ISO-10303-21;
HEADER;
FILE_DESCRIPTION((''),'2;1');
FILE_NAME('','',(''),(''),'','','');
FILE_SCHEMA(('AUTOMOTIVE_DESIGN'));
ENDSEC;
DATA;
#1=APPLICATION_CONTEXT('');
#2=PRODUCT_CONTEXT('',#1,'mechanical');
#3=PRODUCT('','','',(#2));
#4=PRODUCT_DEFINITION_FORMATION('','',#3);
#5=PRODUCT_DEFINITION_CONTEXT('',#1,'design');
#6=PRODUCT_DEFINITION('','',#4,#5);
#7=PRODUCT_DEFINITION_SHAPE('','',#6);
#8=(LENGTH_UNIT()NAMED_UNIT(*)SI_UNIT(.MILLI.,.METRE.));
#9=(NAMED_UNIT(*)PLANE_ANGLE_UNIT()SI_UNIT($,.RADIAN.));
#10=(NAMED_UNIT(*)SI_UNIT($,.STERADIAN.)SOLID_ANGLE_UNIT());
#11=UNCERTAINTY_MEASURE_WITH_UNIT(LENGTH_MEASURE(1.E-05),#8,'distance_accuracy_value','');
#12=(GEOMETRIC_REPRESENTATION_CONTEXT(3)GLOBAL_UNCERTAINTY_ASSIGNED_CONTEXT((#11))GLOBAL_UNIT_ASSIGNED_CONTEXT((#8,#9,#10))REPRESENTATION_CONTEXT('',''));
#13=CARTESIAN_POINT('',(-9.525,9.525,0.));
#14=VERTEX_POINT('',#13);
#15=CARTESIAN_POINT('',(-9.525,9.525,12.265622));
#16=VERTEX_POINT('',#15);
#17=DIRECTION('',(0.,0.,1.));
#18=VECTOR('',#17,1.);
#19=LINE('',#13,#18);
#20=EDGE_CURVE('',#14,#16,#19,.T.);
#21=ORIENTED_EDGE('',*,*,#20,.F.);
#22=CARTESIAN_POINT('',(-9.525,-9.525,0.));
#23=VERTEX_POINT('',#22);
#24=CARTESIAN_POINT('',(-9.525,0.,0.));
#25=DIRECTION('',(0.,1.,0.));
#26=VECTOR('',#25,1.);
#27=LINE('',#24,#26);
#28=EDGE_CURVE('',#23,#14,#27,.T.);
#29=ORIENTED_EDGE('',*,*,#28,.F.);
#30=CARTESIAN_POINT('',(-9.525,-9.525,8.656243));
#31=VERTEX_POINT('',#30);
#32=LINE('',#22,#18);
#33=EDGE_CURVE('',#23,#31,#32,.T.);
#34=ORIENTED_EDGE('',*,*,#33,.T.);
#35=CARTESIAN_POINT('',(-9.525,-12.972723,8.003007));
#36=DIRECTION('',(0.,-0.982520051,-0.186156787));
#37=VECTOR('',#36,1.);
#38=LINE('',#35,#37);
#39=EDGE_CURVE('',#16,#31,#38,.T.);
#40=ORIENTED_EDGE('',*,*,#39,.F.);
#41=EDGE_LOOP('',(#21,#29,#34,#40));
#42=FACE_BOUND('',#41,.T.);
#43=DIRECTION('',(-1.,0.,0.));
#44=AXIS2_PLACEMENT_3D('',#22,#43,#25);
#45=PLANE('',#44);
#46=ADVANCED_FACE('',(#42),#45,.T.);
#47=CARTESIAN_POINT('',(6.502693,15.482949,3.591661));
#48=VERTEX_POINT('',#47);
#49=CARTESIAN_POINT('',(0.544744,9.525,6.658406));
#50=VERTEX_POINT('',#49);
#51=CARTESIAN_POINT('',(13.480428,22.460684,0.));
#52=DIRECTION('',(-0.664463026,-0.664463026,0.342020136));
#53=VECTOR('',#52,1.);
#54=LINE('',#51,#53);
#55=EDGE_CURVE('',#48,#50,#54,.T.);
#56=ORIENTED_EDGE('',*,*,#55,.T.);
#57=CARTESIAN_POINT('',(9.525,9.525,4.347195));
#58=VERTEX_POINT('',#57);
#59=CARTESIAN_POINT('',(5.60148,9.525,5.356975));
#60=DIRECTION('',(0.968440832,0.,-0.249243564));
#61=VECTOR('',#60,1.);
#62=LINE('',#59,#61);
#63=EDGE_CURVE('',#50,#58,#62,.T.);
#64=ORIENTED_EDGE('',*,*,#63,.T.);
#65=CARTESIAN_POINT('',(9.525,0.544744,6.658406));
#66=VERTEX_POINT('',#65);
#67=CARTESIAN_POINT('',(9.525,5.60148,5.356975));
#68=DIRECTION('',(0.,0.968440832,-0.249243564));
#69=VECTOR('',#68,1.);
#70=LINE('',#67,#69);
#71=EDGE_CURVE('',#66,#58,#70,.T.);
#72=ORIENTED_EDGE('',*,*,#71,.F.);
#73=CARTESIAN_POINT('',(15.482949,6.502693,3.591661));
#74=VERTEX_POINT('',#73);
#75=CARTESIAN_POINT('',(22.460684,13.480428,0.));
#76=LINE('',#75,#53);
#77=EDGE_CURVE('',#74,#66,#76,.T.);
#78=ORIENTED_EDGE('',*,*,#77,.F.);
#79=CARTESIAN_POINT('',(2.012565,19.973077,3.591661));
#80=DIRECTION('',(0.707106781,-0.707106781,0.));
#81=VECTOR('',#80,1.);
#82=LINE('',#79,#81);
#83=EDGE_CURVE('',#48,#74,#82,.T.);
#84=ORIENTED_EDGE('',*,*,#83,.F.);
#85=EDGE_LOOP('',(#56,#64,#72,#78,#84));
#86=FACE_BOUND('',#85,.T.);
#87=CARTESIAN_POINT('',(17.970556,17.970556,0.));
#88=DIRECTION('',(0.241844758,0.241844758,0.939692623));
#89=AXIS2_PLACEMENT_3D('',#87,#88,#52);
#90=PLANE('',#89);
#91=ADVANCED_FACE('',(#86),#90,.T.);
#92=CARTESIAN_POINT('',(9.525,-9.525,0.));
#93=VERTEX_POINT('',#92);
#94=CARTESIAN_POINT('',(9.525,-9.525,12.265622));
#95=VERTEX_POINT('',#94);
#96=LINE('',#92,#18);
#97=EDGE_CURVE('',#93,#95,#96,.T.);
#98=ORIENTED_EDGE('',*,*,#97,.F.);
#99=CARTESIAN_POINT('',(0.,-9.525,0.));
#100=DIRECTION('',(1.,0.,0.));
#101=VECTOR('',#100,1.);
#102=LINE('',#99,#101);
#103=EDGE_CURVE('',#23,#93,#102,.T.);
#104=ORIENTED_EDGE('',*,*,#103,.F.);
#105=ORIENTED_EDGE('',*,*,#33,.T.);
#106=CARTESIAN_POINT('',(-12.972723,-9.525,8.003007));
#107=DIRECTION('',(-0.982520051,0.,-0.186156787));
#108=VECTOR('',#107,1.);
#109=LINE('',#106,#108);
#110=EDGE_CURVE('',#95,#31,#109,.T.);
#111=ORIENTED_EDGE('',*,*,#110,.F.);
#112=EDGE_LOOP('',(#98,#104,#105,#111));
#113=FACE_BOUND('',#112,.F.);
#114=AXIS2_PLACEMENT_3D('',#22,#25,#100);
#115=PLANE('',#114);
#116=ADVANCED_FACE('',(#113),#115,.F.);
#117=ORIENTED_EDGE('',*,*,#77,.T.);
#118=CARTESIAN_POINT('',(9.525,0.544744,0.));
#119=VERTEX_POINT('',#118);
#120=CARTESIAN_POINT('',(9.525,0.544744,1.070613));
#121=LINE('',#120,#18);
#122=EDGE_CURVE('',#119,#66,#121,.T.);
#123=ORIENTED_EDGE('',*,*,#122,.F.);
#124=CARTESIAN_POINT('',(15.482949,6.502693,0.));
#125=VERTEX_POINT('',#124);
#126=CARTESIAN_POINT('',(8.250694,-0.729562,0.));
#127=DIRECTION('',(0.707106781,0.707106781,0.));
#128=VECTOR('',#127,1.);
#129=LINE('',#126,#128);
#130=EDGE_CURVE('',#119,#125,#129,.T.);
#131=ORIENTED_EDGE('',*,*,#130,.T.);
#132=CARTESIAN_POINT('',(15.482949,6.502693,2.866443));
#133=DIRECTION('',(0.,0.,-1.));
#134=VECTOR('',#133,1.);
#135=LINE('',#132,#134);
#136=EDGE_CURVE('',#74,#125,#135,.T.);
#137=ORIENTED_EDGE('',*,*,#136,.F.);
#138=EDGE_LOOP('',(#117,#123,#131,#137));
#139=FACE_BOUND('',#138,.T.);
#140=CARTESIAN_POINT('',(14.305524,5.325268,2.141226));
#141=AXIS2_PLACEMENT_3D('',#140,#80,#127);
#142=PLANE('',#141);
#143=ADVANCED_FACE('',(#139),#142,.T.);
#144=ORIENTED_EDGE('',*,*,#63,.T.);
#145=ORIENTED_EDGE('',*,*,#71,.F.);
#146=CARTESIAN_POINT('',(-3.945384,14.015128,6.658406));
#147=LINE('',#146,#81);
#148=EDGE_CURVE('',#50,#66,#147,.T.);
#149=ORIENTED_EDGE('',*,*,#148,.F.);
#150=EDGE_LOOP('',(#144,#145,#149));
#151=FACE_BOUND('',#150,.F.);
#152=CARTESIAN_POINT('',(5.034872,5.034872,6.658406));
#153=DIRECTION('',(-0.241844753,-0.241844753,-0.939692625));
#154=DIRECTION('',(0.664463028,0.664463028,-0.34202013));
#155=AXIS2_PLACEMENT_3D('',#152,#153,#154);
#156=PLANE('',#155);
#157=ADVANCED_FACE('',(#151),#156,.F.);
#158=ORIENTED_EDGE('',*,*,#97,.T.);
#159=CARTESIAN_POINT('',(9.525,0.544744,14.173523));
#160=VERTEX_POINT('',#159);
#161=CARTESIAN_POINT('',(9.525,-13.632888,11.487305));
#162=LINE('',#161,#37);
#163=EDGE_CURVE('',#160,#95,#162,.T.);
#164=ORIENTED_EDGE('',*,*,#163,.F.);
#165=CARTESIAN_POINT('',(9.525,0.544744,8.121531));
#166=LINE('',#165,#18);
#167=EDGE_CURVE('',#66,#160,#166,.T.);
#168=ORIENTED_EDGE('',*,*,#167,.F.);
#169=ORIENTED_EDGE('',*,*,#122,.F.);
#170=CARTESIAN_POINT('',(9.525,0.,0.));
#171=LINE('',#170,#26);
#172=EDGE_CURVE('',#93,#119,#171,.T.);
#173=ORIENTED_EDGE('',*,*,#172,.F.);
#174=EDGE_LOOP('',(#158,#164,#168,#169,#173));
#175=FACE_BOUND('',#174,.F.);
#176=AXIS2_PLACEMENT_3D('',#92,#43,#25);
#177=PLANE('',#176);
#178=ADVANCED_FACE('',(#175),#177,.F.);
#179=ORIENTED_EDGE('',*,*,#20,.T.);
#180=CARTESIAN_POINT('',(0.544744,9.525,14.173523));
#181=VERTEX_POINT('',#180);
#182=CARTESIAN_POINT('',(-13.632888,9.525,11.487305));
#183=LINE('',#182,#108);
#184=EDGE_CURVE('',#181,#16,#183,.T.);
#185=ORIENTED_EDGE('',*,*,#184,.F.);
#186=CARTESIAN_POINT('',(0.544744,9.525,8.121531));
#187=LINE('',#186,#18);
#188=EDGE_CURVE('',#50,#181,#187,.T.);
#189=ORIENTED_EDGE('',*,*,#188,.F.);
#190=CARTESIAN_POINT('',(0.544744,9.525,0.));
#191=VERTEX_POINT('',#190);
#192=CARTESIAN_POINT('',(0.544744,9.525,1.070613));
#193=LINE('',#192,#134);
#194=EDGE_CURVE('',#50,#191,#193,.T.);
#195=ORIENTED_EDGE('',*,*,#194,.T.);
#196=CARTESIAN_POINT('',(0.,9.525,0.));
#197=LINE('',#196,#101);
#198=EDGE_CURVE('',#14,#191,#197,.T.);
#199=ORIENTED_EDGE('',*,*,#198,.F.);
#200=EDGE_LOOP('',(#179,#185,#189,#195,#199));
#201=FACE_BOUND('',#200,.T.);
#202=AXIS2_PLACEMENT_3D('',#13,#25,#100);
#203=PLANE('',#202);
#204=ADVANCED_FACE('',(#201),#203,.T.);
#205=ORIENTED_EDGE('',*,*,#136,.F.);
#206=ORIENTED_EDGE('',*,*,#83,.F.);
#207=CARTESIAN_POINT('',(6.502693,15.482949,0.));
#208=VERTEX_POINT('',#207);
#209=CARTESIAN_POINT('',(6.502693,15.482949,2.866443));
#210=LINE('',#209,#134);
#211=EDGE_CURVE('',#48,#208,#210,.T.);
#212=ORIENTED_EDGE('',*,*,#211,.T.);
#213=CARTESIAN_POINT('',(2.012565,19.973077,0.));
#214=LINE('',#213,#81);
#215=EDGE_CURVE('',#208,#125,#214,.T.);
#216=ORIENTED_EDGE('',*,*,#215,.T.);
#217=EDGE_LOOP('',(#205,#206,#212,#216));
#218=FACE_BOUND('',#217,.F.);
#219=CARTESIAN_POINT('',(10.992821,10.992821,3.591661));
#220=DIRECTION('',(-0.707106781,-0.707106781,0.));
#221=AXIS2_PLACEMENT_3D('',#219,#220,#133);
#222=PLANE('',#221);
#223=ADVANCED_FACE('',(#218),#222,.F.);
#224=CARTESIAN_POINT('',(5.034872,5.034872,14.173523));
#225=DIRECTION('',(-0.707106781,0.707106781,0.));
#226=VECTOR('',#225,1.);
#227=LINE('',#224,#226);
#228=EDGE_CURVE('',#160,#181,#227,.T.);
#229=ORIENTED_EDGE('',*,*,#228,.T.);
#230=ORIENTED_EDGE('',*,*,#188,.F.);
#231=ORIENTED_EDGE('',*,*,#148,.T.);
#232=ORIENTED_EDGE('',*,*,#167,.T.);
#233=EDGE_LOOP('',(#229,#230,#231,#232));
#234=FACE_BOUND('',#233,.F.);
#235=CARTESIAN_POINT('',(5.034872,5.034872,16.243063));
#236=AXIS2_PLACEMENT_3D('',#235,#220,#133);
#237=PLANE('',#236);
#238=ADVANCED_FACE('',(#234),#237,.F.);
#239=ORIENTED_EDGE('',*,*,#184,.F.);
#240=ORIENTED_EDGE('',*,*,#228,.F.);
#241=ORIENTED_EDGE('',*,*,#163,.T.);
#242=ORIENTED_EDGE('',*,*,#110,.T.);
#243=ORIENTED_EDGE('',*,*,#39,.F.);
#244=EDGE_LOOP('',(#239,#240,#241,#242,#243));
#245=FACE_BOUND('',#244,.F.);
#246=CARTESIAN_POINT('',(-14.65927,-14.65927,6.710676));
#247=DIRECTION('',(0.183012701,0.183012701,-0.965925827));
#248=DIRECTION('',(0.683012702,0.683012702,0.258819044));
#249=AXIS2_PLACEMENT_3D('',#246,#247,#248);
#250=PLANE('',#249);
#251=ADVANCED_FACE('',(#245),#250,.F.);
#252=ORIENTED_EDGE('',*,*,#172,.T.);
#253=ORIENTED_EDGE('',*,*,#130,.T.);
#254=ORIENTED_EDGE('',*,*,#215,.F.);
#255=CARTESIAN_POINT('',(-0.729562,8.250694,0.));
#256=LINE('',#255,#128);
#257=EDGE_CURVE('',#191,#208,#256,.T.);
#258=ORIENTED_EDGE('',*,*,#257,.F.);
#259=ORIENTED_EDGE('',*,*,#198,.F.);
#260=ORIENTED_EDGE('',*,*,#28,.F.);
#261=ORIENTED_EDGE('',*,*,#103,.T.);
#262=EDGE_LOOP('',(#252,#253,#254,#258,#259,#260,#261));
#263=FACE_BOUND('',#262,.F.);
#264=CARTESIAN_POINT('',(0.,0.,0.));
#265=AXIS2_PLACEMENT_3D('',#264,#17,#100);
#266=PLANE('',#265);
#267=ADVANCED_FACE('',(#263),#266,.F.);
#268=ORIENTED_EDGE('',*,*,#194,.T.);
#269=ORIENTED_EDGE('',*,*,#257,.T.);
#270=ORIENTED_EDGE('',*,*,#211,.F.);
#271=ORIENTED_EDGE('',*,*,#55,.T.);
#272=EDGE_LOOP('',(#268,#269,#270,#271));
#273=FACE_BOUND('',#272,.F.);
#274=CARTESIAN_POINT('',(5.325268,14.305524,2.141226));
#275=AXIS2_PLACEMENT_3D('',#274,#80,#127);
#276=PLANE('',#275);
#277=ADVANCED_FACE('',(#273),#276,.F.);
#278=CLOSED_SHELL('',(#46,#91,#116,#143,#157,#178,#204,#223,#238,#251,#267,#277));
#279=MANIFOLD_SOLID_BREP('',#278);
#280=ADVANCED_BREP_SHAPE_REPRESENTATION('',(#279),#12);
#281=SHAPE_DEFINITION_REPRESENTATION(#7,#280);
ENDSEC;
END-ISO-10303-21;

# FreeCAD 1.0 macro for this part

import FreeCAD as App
import Part
import Sketcher

V = App.Vector
Q = App.Units.Quantity

doc = App.newDocument("Part")
body = doc.addObject("PartDesign::Body", "Body")

sketch1 = body.newObject("Sketcher::SketchObject", "Sketch")
sketch1.AttachmentSupport = (doc.getObject("XY_Plane"), [""])
sketch1.MapMode = "FlatFace"
sketch1.addGeometry([
    Part.LineSegment(V(-10, 10, 0), V(-10, -10, 0)),
    Part.LineSegment(V(-10, -10, 0), V(10, -10, 0)),
    Part.LineSegment(V(10, -10, 0), V(10, 10, 0)),
    Part.LineSegment(V(10, 10, 0), V(-10, 10, 0)),
], False)
sketch1.addConstraint([
    Sketcher.Constraint("Coincident", 0, 2, 1, 1),
    Sketcher.Constraint("Coincident", 1, 2, 2, 1),
    Sketcher.Constraint("Coincident", 2, 2, 3, 1),
    Sketcher.Constraint("Coincident", 3, 2, 0, 1),
    Sketcher.Constraint("Vertical", 0),
    Sketcher.Constraint("Horizontal", 1),
    Sketcher.Constraint("Vertical", 2),
    Sketcher.Constraint("Horizontal", 3),
    Sketcher.Constraint("Symmetric", 0, 2, 2, 2, -1, 1),
    Sketcher.Constraint("Equal", 3, 0),
    Sketcher.Constraint("DistanceX", 1, 1, 1, 2, Q("0.75 in")),
])
pad1 = body.newObject("PartDesign::Pad", "Pad")
pad1.Profile = sketch1
pad1.Length = Q("0.625 in")

sketch2 = body.newObject("Sketcher::SketchObject", "Sketch001")
sketch2.Placement = App.Placement(V(0, 0, 0), App.Rotation(V(0.707106781, 0.707106781, 0), V(0, 0, 0.999999999), V(0.707106781, -0.707106781, 0), "ZXY"))
sketch2.addGeometry([
    Part.LineSegment(V(-21, 7, 0), V(13, 16, 0)),
    Part.LineSegment(V(13, 16, 0), V(-27, 16, 0)),
    Part.LineSegment(V(-27, 16, 0), V(-21, 7, 0)),
], False)
sketch2.addConstraint([
    Sketcher.Constraint("Coincident", 0, 2, 1, 1),
    Sketcher.Constraint("Coincident", 1, 2, 2, 1),
    Sketcher.Constraint("Coincident", 2, 2, 0, 1),
    Sketcher.Constraint("Horizontal", 1),
    Sketcher.Constraint("Angle", 0, Q("15 deg")),
    Sketcher.Constraint("DistanceY", -1, 1, 0, 2, Q("0.625 in")),
    Sketcher.Constraint("DistanceY", -1, 1, 2, 2, Q("0.2641998 in")),
    Sketcher.Constraint("DistanceX", 1, 2, 1, 1, 40.311529),
    Sketcher.Constraint("DistanceX", 2, 2, -1, 1, 20.731339),
])
pocket1 = body.newObject("PartDesign::Pocket", "Pocket")
pocket1.Profile = sketch2
pocket1.Length = Q("1.48 in")
pocket1.Midplane = True

sketch3 = body.newObject("Sketcher::SketchObject", "Sketch002")
sketch3.Placement = App.Placement(V(0, 0, 0), App.Rotation(V(0.707106781, 0.707106781, 0), V(0, 0, 0.999999999), V(0.707106781, -0.707106781, 0), "ZXY"))
sketch3.addGeometry([
    Part.LineSegment(V(5, 0, 0), V(25, 0, 0)),
    Part.LineSegment(V(25, 0, 0), V(5, 7, 0)),
    Part.LineSegment(V(5, 7, 0), V(5, 0, 0)),
], False)
sketch3.addConstraint([
    Sketcher.Constraint("Coincident", 0, 2, 1, 1),
    Sketcher.Constraint("Coincident", 1, 2, 2, 1),
    Sketcher.Constraint("Coincident", 2, 2, 0, 1),
    Sketcher.Constraint("Horizontal", 0),
    Sketcher.Constraint("PointOnObject", 0, 2, -1),
    Sketcher.Constraint("Angle", 1, Q("160 deg")),
    Sketcher.Constraint("DistanceX", 0, 1, 0, 2, 20.095961),
    Sketcher.Constraint("Distance", 2, 7.29102),
    Sketcher.Constraint("DistanceX", -1, 1, 1, 2, 5.383082),
])
pad2 = body.newObject("PartDesign::Pad", "Pad001")
pad2.Profile = sketch3
pad2.Length = Q("0.5 in")
pad2.Midplane = True

sketch4 = body.newObject("Sketcher::SketchObject", "Sketch003")
sketch4.Placement = App.Placement(V(0, 0, 0), App.Rotation(V(0.707106781, 0.707106781, 0), V(0, 0, 0.999999999), V(0.707106781, -0.707106781, 0), "ZXY"))
sketch4.addGeometry([
    Part.LineSegment(V(7.1, 16.2, 0), V(7.1, 6.7, 0)),
    Part.LineSegment(V(7.1, 6.7, 0), V(15.5, 3.6, 0)),
    Part.LineSegment(V(15.5, 3.6, 0), V(15.5, 0, 0)),
    Part.LineSegment(V(15.5, 0, 0), V(25.4, 0, 0)),
    Part.LineSegment(V(25.4, 0, 0), V(14, 17.5, 0)),
    Part.LineSegment(V(14, 17.5, 0), V(7.1, 16.2, 0)),
], False)
sketch4.addConstraint([
    Sketcher.Constraint("Coincident", 0, 2, 1, 1),
    Sketcher.Constraint("Coincident", 1, 2, 2, 1),
    Sketcher.Constraint("Coincident", 2, 2, 3, 1),
    Sketcher.Constraint("Coincident", 3, 2, 4, 1),
    Sketcher.Constraint("Coincident", 4, 2, 5, 1),
    Sketcher.Constraint("Coincident", 5, 2, 0, 1),
    Sketcher.Constraint("Vertical", 0),
    Sketcher.Constraint("Vertical", 2),
    Sketcher.Constraint("Horizontal", 3),
    Sketcher.Constraint("PointOnObject", 2, 2, -1),
    Sketcher.Constraint("Angle", 1, Q("-19.999999 deg")),
    Sketcher.Constraint("DistanceY", 2, 2, 2, 1, 3.591661),
    Sketcher.Constraint("DistanceY", 1, 2, 5, 2, 12.651402),
    Sketcher.Constraint("Distance", 5, 7.014531),
    Sketcher.Constraint("DistanceX", 3, 1, 3, 2, 9.868007),
    Sketcher.Constraint("DistanceY", 0, 2, 0, 1, 9.584657),
    Sketcher.Constraint("DistanceX", 0, 2, 4, 2, 6.897922),
    Sketcher.Constraint("DistanceX", -1, 1, 0, 2, 7.120384),
])
pocket2 = body.newObject("PartDesign::Pocket", "Pocket001")
pocket2.Profile = sketch4
pocket2.Length = Q("1 in")
pocket2.Midplane = True

doc.recompute()
